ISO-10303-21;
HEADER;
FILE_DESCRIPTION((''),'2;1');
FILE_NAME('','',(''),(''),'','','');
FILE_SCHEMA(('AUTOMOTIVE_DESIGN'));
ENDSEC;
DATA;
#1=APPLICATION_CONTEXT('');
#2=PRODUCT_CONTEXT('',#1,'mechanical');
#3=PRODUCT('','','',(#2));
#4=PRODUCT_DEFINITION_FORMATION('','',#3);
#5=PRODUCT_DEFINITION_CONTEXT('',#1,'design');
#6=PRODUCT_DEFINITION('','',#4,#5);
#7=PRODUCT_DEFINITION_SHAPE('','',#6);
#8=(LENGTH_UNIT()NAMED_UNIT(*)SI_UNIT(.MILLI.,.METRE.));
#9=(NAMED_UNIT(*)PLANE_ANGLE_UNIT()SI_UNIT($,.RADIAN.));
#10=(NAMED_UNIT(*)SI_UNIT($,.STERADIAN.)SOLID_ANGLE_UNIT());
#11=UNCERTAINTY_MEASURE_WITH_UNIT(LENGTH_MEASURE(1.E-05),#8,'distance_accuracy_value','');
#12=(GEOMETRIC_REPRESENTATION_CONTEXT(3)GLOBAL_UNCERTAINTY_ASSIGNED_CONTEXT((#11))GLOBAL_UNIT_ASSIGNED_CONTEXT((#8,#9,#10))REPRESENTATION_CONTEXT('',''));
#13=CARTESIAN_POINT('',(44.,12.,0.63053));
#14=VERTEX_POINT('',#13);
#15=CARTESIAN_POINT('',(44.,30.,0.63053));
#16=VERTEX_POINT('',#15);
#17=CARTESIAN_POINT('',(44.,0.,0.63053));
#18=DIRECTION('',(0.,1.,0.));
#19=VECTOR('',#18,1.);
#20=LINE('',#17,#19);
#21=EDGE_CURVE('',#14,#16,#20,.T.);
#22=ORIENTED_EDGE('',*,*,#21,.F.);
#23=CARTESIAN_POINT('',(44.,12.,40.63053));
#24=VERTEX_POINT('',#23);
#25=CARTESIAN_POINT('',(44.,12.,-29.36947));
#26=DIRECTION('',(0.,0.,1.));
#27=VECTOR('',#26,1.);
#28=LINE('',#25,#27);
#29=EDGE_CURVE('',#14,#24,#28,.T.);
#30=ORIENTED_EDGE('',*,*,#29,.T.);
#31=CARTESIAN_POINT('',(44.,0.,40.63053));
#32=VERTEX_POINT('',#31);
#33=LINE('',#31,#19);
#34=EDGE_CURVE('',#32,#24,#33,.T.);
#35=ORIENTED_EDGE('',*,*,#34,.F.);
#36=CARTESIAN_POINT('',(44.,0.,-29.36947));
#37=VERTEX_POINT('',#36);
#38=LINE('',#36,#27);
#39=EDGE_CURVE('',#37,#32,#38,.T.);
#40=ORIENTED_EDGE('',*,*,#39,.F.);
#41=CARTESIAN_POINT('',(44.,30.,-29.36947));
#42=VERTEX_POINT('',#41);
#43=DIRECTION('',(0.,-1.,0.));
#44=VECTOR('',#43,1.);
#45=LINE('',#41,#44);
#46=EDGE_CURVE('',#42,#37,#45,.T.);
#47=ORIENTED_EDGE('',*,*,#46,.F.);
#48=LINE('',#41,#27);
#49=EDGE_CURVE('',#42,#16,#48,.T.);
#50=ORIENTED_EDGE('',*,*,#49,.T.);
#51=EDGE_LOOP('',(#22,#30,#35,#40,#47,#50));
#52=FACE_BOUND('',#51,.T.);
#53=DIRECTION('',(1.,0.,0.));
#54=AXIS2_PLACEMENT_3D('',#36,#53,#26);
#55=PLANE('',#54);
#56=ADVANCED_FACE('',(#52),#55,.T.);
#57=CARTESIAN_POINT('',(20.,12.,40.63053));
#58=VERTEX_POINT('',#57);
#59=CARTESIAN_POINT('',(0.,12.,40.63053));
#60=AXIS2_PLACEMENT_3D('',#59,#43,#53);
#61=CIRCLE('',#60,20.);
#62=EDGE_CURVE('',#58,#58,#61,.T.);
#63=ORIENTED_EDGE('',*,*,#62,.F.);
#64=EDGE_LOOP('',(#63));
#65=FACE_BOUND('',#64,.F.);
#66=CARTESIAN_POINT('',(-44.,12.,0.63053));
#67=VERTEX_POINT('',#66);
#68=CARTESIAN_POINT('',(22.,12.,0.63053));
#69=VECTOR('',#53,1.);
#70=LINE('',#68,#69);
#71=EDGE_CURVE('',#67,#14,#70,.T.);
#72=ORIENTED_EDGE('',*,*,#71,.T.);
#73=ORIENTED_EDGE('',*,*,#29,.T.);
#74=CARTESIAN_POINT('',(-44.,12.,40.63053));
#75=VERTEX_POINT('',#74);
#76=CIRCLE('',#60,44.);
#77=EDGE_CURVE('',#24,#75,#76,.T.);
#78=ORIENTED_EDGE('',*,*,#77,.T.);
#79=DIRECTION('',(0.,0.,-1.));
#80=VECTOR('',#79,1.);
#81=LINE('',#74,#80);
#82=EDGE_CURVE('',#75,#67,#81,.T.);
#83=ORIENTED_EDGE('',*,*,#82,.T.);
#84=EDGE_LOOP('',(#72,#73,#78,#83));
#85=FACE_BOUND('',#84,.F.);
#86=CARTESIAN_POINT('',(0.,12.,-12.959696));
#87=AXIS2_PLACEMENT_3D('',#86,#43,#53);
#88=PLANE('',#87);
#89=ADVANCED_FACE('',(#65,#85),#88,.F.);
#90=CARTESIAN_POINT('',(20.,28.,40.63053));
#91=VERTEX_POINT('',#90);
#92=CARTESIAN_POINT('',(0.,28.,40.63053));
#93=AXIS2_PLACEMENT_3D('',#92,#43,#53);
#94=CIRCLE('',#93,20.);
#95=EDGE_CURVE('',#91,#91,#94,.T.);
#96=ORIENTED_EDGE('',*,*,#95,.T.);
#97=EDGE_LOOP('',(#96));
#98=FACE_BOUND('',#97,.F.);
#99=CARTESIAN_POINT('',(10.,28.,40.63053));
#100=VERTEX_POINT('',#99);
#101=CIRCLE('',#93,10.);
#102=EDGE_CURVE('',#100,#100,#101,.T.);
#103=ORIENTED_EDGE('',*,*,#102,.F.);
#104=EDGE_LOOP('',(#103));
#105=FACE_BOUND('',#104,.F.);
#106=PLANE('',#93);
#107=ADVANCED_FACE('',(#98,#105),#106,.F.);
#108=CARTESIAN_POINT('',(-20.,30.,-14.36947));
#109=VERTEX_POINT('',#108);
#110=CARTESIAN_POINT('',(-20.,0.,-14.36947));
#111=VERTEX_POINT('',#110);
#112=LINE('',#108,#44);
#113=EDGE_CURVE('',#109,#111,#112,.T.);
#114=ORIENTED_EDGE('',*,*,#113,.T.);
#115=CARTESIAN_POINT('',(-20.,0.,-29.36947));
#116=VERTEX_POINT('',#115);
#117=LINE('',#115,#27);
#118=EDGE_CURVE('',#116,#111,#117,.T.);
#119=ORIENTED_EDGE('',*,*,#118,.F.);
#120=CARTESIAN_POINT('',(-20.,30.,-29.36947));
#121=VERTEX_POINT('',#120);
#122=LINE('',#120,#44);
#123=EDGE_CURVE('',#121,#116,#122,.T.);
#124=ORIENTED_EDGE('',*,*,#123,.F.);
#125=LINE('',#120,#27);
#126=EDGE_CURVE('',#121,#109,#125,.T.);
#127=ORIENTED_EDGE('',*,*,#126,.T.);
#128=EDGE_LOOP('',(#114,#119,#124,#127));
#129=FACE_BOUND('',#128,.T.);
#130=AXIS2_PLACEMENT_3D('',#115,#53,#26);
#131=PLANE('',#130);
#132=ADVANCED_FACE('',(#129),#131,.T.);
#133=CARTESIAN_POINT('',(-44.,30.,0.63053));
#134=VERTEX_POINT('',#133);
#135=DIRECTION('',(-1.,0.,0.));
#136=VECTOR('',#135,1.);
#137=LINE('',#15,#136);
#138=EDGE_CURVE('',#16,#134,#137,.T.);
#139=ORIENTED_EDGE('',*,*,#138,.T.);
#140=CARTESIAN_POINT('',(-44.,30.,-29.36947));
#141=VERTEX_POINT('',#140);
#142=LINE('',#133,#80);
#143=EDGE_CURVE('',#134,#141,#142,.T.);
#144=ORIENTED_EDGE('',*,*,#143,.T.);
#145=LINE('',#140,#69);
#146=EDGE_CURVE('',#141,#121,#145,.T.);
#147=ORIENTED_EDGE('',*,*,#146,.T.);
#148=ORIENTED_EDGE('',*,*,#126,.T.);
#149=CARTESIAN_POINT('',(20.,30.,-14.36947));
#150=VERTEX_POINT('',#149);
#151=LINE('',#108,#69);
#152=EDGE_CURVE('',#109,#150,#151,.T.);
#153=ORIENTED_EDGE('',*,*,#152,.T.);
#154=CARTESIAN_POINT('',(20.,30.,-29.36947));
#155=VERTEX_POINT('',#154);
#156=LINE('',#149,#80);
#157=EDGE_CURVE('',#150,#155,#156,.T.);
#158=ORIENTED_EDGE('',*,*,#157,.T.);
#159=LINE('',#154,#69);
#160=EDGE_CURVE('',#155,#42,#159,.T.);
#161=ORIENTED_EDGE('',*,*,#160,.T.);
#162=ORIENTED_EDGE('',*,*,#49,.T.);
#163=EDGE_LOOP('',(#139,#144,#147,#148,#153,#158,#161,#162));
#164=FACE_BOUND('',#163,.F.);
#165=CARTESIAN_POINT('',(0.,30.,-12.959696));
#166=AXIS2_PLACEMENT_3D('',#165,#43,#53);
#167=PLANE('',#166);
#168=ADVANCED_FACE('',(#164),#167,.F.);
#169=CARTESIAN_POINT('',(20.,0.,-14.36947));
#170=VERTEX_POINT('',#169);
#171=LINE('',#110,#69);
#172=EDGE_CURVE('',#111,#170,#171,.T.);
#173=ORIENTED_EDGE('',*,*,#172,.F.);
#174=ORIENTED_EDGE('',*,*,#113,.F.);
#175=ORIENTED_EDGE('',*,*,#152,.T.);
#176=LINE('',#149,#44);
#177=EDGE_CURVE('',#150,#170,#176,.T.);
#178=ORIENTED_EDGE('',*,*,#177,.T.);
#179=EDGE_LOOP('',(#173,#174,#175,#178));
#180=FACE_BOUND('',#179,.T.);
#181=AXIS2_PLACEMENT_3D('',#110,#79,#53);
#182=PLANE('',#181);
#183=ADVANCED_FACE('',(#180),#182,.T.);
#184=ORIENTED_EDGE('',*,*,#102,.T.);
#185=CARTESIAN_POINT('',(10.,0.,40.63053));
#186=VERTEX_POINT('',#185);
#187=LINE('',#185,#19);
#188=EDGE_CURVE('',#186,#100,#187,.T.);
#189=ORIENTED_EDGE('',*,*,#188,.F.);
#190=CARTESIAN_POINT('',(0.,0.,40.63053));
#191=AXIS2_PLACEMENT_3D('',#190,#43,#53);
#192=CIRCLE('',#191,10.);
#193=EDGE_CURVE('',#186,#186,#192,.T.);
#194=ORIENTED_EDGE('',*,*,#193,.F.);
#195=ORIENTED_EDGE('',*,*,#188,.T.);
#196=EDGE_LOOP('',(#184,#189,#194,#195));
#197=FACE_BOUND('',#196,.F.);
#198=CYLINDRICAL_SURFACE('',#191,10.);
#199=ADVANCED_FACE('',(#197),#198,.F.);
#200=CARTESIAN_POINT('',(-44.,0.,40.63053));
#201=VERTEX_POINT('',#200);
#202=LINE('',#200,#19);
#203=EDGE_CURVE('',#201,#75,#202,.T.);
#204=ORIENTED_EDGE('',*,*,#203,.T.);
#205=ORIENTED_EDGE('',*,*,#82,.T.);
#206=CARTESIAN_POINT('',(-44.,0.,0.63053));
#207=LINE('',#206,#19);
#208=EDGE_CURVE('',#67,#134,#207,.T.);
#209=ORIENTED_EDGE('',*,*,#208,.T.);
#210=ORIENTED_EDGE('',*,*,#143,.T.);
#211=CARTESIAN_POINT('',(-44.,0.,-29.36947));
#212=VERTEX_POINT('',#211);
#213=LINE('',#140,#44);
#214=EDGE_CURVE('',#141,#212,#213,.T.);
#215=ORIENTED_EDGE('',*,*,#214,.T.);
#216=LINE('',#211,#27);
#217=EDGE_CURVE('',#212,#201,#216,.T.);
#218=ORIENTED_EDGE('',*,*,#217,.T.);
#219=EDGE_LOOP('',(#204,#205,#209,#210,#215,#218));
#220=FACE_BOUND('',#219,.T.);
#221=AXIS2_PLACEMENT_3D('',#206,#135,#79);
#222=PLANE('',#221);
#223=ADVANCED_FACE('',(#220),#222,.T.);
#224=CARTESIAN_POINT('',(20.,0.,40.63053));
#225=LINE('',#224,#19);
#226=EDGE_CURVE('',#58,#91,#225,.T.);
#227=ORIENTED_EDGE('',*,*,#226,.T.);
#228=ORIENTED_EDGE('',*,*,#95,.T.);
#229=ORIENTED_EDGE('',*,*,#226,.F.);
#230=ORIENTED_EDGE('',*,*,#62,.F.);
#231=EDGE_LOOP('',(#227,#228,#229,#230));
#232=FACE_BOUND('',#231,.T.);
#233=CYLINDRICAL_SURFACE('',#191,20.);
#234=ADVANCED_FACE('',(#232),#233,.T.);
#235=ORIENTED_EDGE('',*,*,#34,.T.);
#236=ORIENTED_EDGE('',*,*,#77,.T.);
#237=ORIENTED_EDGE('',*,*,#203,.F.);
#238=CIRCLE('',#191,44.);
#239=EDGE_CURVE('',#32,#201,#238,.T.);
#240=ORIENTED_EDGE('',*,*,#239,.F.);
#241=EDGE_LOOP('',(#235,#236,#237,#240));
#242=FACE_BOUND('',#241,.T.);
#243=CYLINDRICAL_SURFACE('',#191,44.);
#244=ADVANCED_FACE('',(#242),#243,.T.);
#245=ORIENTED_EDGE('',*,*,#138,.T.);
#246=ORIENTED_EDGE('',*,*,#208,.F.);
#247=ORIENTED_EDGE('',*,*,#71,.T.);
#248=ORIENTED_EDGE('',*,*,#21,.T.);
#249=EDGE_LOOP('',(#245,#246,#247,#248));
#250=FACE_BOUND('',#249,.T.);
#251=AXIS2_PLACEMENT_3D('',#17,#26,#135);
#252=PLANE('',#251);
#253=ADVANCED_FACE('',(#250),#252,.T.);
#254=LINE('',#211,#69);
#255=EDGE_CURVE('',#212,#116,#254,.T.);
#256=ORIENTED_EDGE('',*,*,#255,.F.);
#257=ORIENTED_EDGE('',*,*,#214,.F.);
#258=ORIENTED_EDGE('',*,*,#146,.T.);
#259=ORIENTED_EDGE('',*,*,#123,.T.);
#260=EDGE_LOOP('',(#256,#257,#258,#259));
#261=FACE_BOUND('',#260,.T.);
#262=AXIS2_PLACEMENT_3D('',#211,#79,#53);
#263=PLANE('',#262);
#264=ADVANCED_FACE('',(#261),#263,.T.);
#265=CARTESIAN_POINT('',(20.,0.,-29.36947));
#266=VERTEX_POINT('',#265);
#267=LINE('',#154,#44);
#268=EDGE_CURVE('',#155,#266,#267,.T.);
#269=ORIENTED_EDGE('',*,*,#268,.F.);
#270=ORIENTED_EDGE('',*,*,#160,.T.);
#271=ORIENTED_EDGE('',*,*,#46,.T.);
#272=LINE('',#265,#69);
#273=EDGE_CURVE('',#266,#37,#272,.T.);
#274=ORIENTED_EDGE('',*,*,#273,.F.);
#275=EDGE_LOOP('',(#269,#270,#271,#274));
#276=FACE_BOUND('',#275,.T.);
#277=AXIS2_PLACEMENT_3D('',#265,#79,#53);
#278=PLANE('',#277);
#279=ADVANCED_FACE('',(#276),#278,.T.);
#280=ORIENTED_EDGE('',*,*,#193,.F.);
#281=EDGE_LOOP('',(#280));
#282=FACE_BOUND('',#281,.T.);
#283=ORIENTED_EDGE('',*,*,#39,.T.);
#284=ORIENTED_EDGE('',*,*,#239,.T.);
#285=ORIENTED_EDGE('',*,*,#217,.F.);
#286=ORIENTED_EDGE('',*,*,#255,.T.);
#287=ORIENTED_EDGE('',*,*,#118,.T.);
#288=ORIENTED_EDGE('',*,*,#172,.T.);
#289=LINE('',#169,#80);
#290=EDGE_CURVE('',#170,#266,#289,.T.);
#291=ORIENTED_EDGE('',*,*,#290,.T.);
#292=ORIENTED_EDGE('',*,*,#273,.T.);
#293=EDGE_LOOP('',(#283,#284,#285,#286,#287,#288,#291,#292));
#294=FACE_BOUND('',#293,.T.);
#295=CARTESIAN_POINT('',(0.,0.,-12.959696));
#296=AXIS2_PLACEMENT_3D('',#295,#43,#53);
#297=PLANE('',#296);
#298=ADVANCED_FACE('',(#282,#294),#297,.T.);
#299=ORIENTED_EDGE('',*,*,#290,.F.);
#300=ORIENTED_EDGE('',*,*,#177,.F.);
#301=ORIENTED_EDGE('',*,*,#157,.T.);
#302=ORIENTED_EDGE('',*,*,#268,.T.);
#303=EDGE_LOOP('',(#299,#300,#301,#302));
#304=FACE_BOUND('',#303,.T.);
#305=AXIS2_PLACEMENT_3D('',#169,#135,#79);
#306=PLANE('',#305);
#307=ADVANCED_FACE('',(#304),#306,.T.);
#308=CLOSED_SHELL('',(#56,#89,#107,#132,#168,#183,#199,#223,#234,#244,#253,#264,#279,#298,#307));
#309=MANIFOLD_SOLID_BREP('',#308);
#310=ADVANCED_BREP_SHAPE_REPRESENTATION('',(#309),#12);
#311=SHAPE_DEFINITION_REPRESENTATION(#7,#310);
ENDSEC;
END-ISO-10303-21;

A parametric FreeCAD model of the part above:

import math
import FreeCAD as App
import Part
import Sketcher


def add_polygon(sketch, points):
    """Adds a closed chain of lines whose ends are joined by coincident constraints."""
    first, n = sketch.GeometryCount, len(points)
    for a, b in zip(points, points[1:] + points[:1]):
        sketch.addGeometry(Part.LineSegment(App.Vector(*a, 0), App.Vector(*b, 0)), False)
    for i in range(n):
        sketch.addConstraint(Sketcher.Constraint("Coincident", first + i, 2, first + (i + 1) % n, 1))

doc = App.newDocument("Part")
body = doc.addObject("PartDesign::Body", "Body")

sketch1 = body.newObject("Sketcher::SketchObject", "Sketch")
sketch1.AttachmentSupport = (doc.getObject("XZ_Plane"), [""])
sketch1.MapMode = "FlatFace"
add_polygon(sketch1, [(-44, 0.63053), (-44, -29.36947), (-20, -29.36947), (-20, -14.36947), (20, -14.36947), (20, -29.36947), (44, -29.36947), (44, 0.63053)])
sketch1.addConstraint(Sketcher.Constraint("Vertical", 0))
sketch1.addConstraint(Sketcher.Constraint("Horizontal", 1))
sketch1.addConstraint(Sketcher.Constraint("Vertical", 2))
sketch1.addConstraint(Sketcher.Constraint("Horizontal", 3))
sketch1.addConstraint(Sketcher.Constraint("Vertical", 4))
sketch1.addConstraint(Sketcher.Constraint("Horizontal", 5))
sketch1.addConstraint(Sketcher.Constraint("Vertical", 6))
sketch1.addConstraint(Sketcher.Constraint("Horizontal", 7))
sketch1.addConstraint(Sketcher.Constraint("Symmetric", 1, 2, 4, 2, -2))
sketch1.addConstraint(Sketcher.Constraint("Equal", 1, 5))
sketch1.addConstraint(Sketcher.Constraint("DistanceX", 1, 1, 1, 2, 24.0))
sketch1.addConstraint(Sketcher.Constraint("DistanceX", 3, 1, 3, 2, 40.0))
sketch1.addConstraint(Sketcher.Constraint("DistanceY", 0, 2, 0, 1, 30.0))
sketch1.addConstraint(Sketcher.Constraint("DistanceY", 2, 1, 2, 2, 15.0))
sketch1.addConstraint(Sketcher.Constraint("DistanceY", 0, 2, -1, 1, 29.36947))
pad1 = body.newObject("PartDesign::Pad", "Pad")
pad1.Profile = sketch1
pad1.Length = 30
pad1.Reversed = True

sketch2 = body.newObject("Sketcher::SketchObject", "Sketch001")
sketch2.AttachmentSupport = (doc.getObject("XZ_Plane"), [""])
sketch2.MapMode = "FlatFace"
sketch2.addGeometry(Part.LineSegment(App.Vector(-44, -29.36947, 0), App.Vector(-20, -29.36947, 0)), False)
sketch2.addGeometry(Part.LineSegment(App.Vector(-20, -29.36947, 0), App.Vector(-20, -14.36947, 0)), False)
sketch2.addGeometry(Part.LineSegment(App.Vector(-20, -14.36947, 0), App.Vector(20, -14.36947, 0)), False)
sketch2.addGeometry(Part.LineSegment(App.Vector(20, -14.36947, 0), App.Vector(20, -29.36947, 0)), False)
sketch2.addGeometry(Part.LineSegment(App.Vector(20, -29.36947, 0), App.Vector(44, -29.36947, 0)), False)
sketch2.addGeometry(Part.LineSegment(App.Vector(44, -29.36947, 0), App.Vector(44, 40.63053, 0)), False)
sketch2.addGeometry(Part.ArcOfCircle(Part.Circle(App.Vector(0, 40.63053, 0), App.Vector(0, 0, 1), 44), math.radians(0), math.radians(180)), False)
sketch2.addGeometry(Part.LineSegment(App.Vector(-44, 40.63053, 0), App.Vector(-44, -29.36947, 0)), False)
sketch2.addGeometry(Part.Circle(App.Vector(0, 40.63053, 0), App.Vector(0, 0, 1), 20), False)
sketch2.addConstraint(Sketcher.Constraint("Coincident", 0, 2, 1, 1))
sketch2.addConstraint(Sketcher.Constraint("Coincident", 1, 2, 2, 1))
sketch2.addConstraint(Sketcher.Constraint("Coincident", 2, 2, 3, 1))
sketch2.addConstraint(Sketcher.Constraint("Coincident", 3, 2, 4, 1))
sketch2.addConstraint(Sketcher.Constraint("Coincident", 4, 2, 5, 1))
sketch2.addConstraint(Sketcher.Constraint("Tangent", 5, 2, 6, 1))
sketch2.addConstraint(Sketcher.Constraint("Tangent", 6, 2, 7, 1))
sketch2.addConstraint(Sketcher.Constraint("Coincident", 7, 2, 0, 1))
sketch2.addConstraint(Sketcher.Constraint("Horizontal", 0))
sketch2.addConstraint(Sketcher.Constraint("Vertical", 1))
sketch2.addConstraint(Sketcher.Constraint("Horizontal", 2))
sketch2.addConstraint(Sketcher.Constraint("Vertical", 3))
sketch2.addConstraint(Sketcher.Constraint("Horizontal", 4))
sketch2.addConstraint(Sketcher.Constraint("Vertical", 5))
sketch2.addConstraint(Sketcher.Constraint("Vertical", 7))
sketch2.addConstraint(Sketcher.Constraint("Coincident", 8, 3, 6, 3))
sketch2.addConstraint(Sketcher.Constraint("Symmetric", 0, 2, 3, 2, -2))
sketch2.addConstraint(Sketcher.Constraint("PointOnObject", 6, 3, -2))
sketch2.addConstraint(Sketcher.Constraint("Diameter", 8, 40.0))
sketch2.addConstraint(Sketcher.Constraint("Radius", 6, 44.0))
sketch2.addConstraint(Sketcher.Constraint("DistanceX", 0, 1, 0, 2, 24.0))
sketch2.addConstraint(Sketcher.Constraint("DistanceY", 1, 1, 1, 2, 15.0))
sketch2.addConstraint(Sketcher.Constraint("DistanceY", 5, 1, 5, 2, 70.0))
sketch2.addConstraint(Sketcher.Constraint("DistanceY", -1, 1, 6, 3, 40.63053))
pad2 = body.newObject("PartDesign::Pad", "Pad001")
pad2.Profile = sketch2
pad2.Length = 12
pad2.Reversed = True

sketch3 = body.newObject("Sketcher::SketchObject", "Sketch002")
sketch3.AttachmentSupport = (doc.getObject("XZ_Plane"), [""])
sketch3.MapMode = "FlatFace"
sketch3.addGeometry(Part.Circle(App.Vector(0, 40.63053, 0), App.Vector(0, 0, 1), 20), False)
sketch3.addGeometry(Part.Circle(App.Vector(0, 40.63053, 0), App.Vector(0, 0, 1), 10), False)
sketch3.addConstraint(Sketcher.Constraint("Coincident", 1, 3, 0, 3))
sketch3.addConstraint(Sketcher.Constraint("PointOnObject", 0, 3, -2))
sketch3.addConstraint(Sketcher.Constraint("Diameter", 0, 40.0))
sketch3.addConstraint(Sketcher.Constraint("Diameter", 1, 20.0))
sketch3.addConstraint(Sketcher.Constraint("DistanceY", -1, 1, 0, 3, 40.63053))
pad3 = body.newObject("PartDesign::Pad", "Pad002")
pad3.Profile = sketch3
pad3.Length = 28
pad3.Reversed = True

doc.recompute()
